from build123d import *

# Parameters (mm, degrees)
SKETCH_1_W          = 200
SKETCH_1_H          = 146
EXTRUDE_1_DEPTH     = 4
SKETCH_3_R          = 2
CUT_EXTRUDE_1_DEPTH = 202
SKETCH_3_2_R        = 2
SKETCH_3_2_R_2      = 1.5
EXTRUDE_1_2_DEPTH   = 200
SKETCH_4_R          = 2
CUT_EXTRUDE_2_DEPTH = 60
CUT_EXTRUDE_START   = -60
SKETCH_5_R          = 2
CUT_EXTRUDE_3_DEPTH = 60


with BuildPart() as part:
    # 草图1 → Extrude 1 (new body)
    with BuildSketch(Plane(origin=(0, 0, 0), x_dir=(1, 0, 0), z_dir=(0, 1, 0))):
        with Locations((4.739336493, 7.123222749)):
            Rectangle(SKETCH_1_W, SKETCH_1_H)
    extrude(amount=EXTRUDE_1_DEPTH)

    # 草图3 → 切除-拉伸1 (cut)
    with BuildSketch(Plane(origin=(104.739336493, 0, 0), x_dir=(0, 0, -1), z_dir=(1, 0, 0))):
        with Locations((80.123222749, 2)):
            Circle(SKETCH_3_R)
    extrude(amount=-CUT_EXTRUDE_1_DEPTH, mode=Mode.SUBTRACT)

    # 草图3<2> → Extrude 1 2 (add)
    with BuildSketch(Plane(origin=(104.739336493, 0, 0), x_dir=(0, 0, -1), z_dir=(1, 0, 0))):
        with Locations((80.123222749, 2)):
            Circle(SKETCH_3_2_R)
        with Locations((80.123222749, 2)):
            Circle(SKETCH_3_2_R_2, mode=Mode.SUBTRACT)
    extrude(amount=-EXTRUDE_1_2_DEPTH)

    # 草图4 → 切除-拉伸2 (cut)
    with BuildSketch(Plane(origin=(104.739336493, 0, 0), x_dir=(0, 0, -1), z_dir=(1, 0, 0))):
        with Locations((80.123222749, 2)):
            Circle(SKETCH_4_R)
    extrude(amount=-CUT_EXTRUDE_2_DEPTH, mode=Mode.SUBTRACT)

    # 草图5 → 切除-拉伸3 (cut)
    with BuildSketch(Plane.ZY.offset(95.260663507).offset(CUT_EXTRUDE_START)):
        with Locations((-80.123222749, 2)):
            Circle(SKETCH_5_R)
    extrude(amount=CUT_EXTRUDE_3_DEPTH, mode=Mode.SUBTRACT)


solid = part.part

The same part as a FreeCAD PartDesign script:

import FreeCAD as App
import Part
import Sketcher
from FreeCAD import Vector


def add_polygon(sketch, points):
    """Adds a closed chain of lines whose ends are joined by coincident constraints."""
    first, n = sketch.GeometryCount, len(points)
    for a, b in zip(points, points[1:] + points[:1]):
        sketch.addGeometry(Part.LineSegment(App.Vector(*a, 0), App.Vector(*b, 0)), False)
    for i in range(n):
        sketch.addConstraint(Sketcher.Constraint("Coincident", first + i, 2, first + (i + 1) % n, 1))

doc = App.newDocument("Part")
body = doc.addObject("PartDesign::Body", "Body")

# Sketch on XZ plane
sketch1 = body.newObject("Sketcher::SketchObject", "Sketch")
sketch1.AttachmentSupport = (doc.getObject("XZ_Plane"), [""])
sketch1.MapMode = "FlatFace"
add_polygon(sketch1, [(-95.260664, -80.123223), (-95.260664, 65.876777), (104.739336, 65.876777), (104.739336, -80.123223)])  # lines 0-3
sketch1.addConstraint(Sketcher.Constraint("Vertical", 0))
sketch1.addConstraint(Sketcher.Constraint("Horizontal", 1))
sketch1.addConstraint(Sketcher.Constraint("Vertical", 2))
sketch1.addConstraint(Sketcher.Constraint("Horizontal", 3))
sketch1.addConstraint(Sketcher.Constraint("DistanceX", 1, 1, 1, 2, 200.0))
sketch1.addConstraint(Sketcher.Constraint("DistanceY", 0, 1, 0, 2, 146.0))
sketch1.addConstraint(Sketcher.Constraint("DistanceX", 0, 2, -1, 1, 95.260664))
sketch1.addConstraint(Sketcher.Constraint("DistanceY", -1, 1, 0, 2, 65.876777))
pad1 = body.newObject("PartDesign::Pad", "Pad")
pad1.Profile = sketch1
pad1.Length = 4
pad1.Reversed = True

# Sketch on YZ plane
sketch2 = body.newObject("Sketcher::SketchObject", "Sketch001")
sketch2.AttachmentSupport = (doc.getObject("YZ_Plane"), [""])
sketch2.MapMode = "FlatFace"
sketch2.AttachmentOffset = App.Placement(Vector(0, 0, 104.739336), App.Rotation())
sketch2.addGeometry(Part.Circle(Vector(2, -80.123223, 0), Vector(0, 0, 1), 2), False)
sketch2.addConstraint(Sketcher.Constraint("Diameter", 0, 4.0))
sketch2.addConstraint(Sketcher.Constraint("DistanceX", -1, 1, 0, 3, 2.0))
sketch2.addConstraint(Sketcher.Constraint("DistanceY", 0, 3, -1, 1, 80.123223))
pocket1 = body.newObject("PartDesign::Pocket", "Pocket")
pocket1.Profile = sketch2
pocket1.Length = 202

# Sketch on YZ plane
sketch3 = body.newObject("Sketcher::SketchObject", "Sketch002")
sketch3.AttachmentSupport = (doc.getObject("YZ_Plane"), [""])
sketch3.MapMode = "FlatFace"
sketch3.AttachmentOffset = App.Placement(Vector(0, 0, 104.739336), App.Rotation())
sketch3.addGeometry(Part.Circle(Vector(2, -80.123223, 0), Vector(0, 0, 1), 2), False)
sketch3.addGeometry(Part.Circle(Vector(2, -80.123223, 0), Vector(0, 0, 1), 1.5), False)
sketch3.addConstraint(Sketcher.Constraint("Coincident", 1, 3, 0, 3))
sketch3.addConstraint(Sketcher.Constraint("Diameter", 0, 4.0))
sketch3.addConstraint(Sketcher.Constraint("Diameter", 1, 3.0))
sketch3.addConstraint(Sketcher.Constraint("DistanceX", -1, 1, 0, 3, 2.0))
sketch3.addConstraint(Sketcher.Constraint("DistanceY", 0, 3, -1, 1, 80.123223))
pad2 = body.newObject("PartDesign::Pad", "Pad001")
pad2.Profile = sketch3
pad2.Length = 200
pad2.Reversed = True

# Sketch on YZ plane
sketch4 = body.newObject("Sketcher::SketchObject", "Sketch003")
sketch4.AttachmentSupport = (doc.getObject("YZ_Plane"), [""])
sketch4.MapMode = "FlatFace"
sketch4.AttachmentOffset = App.Placement(Vector(0, 0, 104.739336), App.Rotation())
sketch4.addGeometry(Part.Circle(Vector(2, -80.123223, 0), Vector(0, 0, 1), 2), False)
sketch4.addConstraint(Sketcher.Constraint("Diameter", 0, 4.0))
sketch4.addConstraint(Sketcher.Constraint("DistanceX", -1, 1, 0, 3, 2.0))
sketch4.addConstraint(Sketcher.Constraint("DistanceY", 0, 3, -1, 1, 80.123223))
pocket2 = body.newObject("PartDesign::Pocket", "Pocket001")
pocket2.Profile = sketch4
pocket2.Length = 60

# Sketch on YZ plane
sketch5 = body.newObject("Sketcher::SketchObject", "Sketch004")
sketch5.AttachmentSupport = (doc.getObject("YZ_Plane"), [""])
sketch5.MapMode = "FlatFace"
sketch5.AttachmentOffset = App.Placement(Vector(0, 0, -35.260664), App.Rotation())
sketch5.addGeometry(Part.Circle(Vector(2, -80.123223, 0), Vector(0, 0, 1), 2), False)
sketch5.addConstraint(Sketcher.Constraint("Diameter", 0, 4.0))
sketch5.addConstraint(Sketcher.Constraint("DistanceX", -1, 1, 0, 3, 2.0))
sketch5.addConstraint(Sketcher.Constraint("DistanceY", 0, 3, -1, 1, 80.123223))
pocket3 = body.newObject("PartDesign::Pocket", "Pocket002")
pocket3.Profile = sketch5
pocket3.Length = 60

doc.recompute()
